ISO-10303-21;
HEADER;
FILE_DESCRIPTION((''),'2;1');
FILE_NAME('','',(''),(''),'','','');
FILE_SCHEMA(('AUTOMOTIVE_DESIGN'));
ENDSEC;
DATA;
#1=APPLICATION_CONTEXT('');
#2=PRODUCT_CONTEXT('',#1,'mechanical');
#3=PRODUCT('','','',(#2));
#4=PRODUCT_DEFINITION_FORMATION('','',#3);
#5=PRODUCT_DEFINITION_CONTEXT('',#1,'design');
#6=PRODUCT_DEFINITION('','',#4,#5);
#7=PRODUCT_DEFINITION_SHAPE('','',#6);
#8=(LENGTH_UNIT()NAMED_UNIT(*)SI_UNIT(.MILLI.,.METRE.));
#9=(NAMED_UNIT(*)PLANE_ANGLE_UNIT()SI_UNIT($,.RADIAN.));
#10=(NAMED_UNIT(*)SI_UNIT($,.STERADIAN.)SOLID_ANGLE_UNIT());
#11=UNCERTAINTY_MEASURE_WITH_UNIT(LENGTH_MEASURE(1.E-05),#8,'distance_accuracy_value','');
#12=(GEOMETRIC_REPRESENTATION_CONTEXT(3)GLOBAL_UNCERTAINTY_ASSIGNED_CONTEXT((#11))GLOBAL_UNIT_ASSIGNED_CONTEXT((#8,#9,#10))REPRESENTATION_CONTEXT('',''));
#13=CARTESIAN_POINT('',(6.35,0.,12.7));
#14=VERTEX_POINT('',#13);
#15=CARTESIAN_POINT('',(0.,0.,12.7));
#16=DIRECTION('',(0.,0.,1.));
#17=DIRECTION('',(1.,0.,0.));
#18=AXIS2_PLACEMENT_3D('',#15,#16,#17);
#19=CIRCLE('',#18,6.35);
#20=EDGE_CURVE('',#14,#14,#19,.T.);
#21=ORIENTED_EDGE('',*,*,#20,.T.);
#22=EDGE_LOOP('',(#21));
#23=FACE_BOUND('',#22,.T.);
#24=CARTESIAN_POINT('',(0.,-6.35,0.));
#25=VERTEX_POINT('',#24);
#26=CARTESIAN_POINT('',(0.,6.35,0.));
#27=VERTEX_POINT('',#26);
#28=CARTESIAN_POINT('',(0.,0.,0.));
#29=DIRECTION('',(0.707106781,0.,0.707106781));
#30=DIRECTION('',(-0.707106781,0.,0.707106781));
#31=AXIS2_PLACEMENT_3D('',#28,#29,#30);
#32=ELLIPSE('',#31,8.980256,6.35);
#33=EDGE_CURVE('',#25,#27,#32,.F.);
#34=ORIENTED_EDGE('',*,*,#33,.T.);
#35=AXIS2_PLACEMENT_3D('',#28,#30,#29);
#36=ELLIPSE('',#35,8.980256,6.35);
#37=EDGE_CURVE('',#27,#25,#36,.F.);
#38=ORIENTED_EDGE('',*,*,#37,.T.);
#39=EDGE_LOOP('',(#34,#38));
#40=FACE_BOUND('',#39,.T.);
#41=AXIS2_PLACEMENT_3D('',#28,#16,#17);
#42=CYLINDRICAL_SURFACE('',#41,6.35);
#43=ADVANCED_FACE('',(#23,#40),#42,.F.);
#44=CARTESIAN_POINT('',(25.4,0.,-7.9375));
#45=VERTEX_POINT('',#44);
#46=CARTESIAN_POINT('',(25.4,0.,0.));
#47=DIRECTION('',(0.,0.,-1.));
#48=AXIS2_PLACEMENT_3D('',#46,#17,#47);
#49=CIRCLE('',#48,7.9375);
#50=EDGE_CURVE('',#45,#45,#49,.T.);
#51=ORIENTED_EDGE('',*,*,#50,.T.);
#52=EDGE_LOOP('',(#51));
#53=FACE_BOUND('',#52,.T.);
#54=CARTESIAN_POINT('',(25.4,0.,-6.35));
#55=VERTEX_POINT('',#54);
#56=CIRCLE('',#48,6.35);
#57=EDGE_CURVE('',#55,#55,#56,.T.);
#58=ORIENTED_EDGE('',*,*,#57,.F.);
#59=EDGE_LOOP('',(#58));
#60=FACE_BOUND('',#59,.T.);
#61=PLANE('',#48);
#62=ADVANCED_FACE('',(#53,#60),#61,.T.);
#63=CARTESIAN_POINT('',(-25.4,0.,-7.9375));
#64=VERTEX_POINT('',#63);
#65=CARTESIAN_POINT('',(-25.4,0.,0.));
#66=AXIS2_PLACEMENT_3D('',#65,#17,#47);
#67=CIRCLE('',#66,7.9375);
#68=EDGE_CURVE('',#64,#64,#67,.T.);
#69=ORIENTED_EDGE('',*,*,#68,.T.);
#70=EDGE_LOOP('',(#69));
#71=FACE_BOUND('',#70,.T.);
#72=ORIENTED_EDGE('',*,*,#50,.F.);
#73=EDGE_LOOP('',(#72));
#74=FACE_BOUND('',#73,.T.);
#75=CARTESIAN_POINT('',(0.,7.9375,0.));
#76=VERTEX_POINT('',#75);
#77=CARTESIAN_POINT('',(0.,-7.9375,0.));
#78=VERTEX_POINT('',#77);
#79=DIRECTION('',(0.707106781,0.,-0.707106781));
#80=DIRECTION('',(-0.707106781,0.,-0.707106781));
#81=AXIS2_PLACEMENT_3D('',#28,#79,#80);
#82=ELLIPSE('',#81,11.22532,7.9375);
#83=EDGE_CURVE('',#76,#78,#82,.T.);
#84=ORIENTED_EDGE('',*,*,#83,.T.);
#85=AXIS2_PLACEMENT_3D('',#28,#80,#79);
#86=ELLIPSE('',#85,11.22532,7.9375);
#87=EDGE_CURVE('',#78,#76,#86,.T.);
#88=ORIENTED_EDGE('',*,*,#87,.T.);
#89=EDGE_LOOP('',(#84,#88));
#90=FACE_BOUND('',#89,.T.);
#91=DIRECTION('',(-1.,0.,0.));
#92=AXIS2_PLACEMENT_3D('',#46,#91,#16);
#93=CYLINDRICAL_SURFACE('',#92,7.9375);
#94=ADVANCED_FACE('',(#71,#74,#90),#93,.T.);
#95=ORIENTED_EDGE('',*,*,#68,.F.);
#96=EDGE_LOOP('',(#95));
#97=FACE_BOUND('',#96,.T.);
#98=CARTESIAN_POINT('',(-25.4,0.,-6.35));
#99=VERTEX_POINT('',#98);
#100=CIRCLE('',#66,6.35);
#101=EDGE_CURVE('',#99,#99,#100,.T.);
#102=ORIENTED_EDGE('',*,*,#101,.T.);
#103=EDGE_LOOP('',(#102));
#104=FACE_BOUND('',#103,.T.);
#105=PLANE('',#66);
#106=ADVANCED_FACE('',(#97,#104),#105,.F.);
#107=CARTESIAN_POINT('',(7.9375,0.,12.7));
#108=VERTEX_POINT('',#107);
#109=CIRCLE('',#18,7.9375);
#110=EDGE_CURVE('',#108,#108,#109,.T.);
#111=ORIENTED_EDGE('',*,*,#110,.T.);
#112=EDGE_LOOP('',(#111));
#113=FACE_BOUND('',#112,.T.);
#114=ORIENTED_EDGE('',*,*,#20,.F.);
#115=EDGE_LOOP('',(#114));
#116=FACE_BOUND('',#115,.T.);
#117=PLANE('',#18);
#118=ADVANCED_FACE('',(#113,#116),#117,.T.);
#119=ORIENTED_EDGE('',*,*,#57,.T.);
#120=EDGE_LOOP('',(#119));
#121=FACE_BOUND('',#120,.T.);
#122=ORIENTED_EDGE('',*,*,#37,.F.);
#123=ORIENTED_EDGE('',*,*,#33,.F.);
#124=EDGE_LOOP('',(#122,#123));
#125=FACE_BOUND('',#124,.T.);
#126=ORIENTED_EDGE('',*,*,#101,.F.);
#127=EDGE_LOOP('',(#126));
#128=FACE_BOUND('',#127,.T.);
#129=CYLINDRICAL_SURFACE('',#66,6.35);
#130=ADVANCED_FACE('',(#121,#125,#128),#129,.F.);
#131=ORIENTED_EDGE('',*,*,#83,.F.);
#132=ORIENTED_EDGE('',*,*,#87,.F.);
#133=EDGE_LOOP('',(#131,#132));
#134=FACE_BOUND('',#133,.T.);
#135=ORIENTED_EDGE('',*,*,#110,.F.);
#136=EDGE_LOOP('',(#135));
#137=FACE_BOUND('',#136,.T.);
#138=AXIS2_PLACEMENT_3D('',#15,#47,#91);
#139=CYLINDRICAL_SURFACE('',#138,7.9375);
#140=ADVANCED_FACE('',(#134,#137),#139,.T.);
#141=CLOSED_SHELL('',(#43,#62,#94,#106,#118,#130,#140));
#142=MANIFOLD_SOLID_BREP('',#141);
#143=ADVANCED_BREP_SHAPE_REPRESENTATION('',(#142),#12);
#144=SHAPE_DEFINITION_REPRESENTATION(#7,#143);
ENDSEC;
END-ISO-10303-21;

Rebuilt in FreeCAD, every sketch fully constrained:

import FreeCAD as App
import Part
import Sketcher
Q = App.Units.Quantity

doc = App.newDocument("Part")
params = doc.addObject("Spreadsheet::Sheet", "Params")
for row, (alias, value) in enumerate([
    ("sketch1_diameter", "0.625 in"),
    ("pad1_length", "0.5 in"),
    ("sketch2_diameter", "0.5 in"),
    ("pocket1_length", "0.5 in"),
    ("sketch3_diameter", "0.625 in"),
    ("pad2_length", "2 in"),
    ("sketch4_diameter", "0.5 in"),
    ("pocket2_length", "0.5 in"),
    ("sketch5_diameter", "0.5 in"),
], start=1):
    params.set(f"A{row}", alias)
    params.set(f"B{row}", "=" + value)
    params.setAlias(f"B{row}", alias)

body = doc.addObject("PartDesign::Body", "Body")

# Sketch on XY plane
sketch1 = doc.addObject("Sketcher::SketchObject", "Sketch")
body.addObject(sketch1)
sketch1.AttachmentSupport = (doc.XY_Plane, [""])
sketch1.MapMode = "FlatFace"
sketch1.addGeometry(Part.Circle(App.Vector(0, 0, 0), App.Vector(0, 0, 1), 7.9375), False)
sketch1.addConstraint(Sketcher.Constraint("Coincident", 0, 3, -1, 1))
sketch1.addConstraint(Sketcher.Constraint("Diameter", 0, Q("0.625 in")))
sketch1.setExpression("Constraints[1]", "Params.sketch1_diameter")
pad1 = doc.addObject("PartDesign::Pad", "Pad")
body.addObject(pad1)
pad1.Profile = sketch1
pad1.setExpression("Length", "Params.pad1_length")

# Sketch on XY plane
sketch2 = doc.addObject("Sketcher::SketchObject", "Sketch001")
body.addObject(sketch2)
sketch2.AttachmentSupport = (doc.XY_Plane, [""])
sketch2.MapMode = "FlatFace"
sketch2.AttachmentOffset = App.Placement(App.Vector(0, 0, 0.5 * 25.4), App.Rotation())
sketch2.addGeometry(Part.Circle(App.Vector(0, 0, 0), App.Vector(0, 0, 1), 6.35), False)
sketch2.addConstraint(Sketcher.Constraint("Coincident", 0, 3, -1, 1))
sketch2.addConstraint(Sketcher.Constraint("Diameter", 0, Q("0.5 in")))
sketch2.setExpression("Constraints[1]", "Params.sketch2_diameter")
pocket1 = doc.addObject("PartDesign::Pocket", "Pocket")
body.addObject(pocket1)
pocket1.Profile = sketch2
pocket1.setExpression("Length", "Params.pocket1_length")

# Sketch on YZ plane
sketch3 = doc.addObject("Sketcher::SketchObject", "Sketch002")
body.addObject(sketch3)
sketch3.AttachmentSupport = (doc.YZ_Plane, [""])
sketch3.MapMode = "FlatFace"
sketch3.addGeometry(Part.Circle(App.Vector(0, 0, 0), App.Vector(0, 0, 1), 7.9375), False)
sketch3.addConstraint(Sketcher.Constraint("Coincident", 0, 3, -1, 1))
sketch3.addConstraint(Sketcher.Constraint("Diameter", 0, Q("0.625 in")))
sketch3.setExpression("Constraints[1]", "Params.sketch3_diameter")
pad2 = doc.addObject("PartDesign::Pad", "Pad001")
body.addObject(pad2)
pad2.Profile = sketch3
pad2.setExpression("Length", "Params.pad2_length")
pad2.Midplane = True

# Sketch on XY plane
sketch4 = doc.addObject("Sketcher::SketchObject", "Sketch003")
body.addObject(sketch4)
sketch4.AttachmentSupport = (doc.XY_Plane, [""])
sketch4.MapMode = "FlatFace"
sketch4.AttachmentOffset = App.Placement(App.Vector(0, 0, 0.5 * 25.4), App.Rotation())
sketch4.addGeometry(Part.Circle(App.Vector(0, 0, 0), App.Vector(0, 0, 1), 6.35), False)
sketch4.addConstraint(Sketcher.Constraint("Coincident", 0, 3, -1, 1))
sketch4.addConstraint(Sketcher.Constraint("Diameter", 0, Q("0.5 in")))
sketch4.setExpression("Constraints[1]", "Params.sketch4_diameter")
pocket2 = doc.addObject("PartDesign::Pocket", "Pocket001")
body.addObject(pocket2)
pocket2.Profile = sketch4
pocket2.setExpression("Length", "Params.pocket2_length")

# Sketch on YZ plane
sketch5 = doc.addObject("Sketcher::SketchObject", "Sketch004")
body.addObject(sketch5)
sketch5.AttachmentSupport = (doc.YZ_Plane, [""])
sketch5.MapMode = "FlatFace"
sketch5.AttachmentOffset = App.Placement(App.Vector(0, 0, 1 * 25.4), App.Rotation())
sketch5.addGeometry(Part.Circle(App.Vector(0, 0, 0), App.Vector(0, 0, 1), 6.35), False)
sketch5.addConstraint(Sketcher.Constraint("Coincident", 0, 3, -1, 1))
sketch5.addConstraint(Sketcher.Constraint("Diameter", 0, Q("0.5 in")))
sketch5.setExpression("Constraints[1]", "Params.sketch5_diameter")
pocket3 = doc.addObject("PartDesign::Pocket", "Pocket002")
body.addObject(pocket3)
pocket3.Profile = sketch5
pocket3.Type = "ThroughAll"

doc.recompute()
